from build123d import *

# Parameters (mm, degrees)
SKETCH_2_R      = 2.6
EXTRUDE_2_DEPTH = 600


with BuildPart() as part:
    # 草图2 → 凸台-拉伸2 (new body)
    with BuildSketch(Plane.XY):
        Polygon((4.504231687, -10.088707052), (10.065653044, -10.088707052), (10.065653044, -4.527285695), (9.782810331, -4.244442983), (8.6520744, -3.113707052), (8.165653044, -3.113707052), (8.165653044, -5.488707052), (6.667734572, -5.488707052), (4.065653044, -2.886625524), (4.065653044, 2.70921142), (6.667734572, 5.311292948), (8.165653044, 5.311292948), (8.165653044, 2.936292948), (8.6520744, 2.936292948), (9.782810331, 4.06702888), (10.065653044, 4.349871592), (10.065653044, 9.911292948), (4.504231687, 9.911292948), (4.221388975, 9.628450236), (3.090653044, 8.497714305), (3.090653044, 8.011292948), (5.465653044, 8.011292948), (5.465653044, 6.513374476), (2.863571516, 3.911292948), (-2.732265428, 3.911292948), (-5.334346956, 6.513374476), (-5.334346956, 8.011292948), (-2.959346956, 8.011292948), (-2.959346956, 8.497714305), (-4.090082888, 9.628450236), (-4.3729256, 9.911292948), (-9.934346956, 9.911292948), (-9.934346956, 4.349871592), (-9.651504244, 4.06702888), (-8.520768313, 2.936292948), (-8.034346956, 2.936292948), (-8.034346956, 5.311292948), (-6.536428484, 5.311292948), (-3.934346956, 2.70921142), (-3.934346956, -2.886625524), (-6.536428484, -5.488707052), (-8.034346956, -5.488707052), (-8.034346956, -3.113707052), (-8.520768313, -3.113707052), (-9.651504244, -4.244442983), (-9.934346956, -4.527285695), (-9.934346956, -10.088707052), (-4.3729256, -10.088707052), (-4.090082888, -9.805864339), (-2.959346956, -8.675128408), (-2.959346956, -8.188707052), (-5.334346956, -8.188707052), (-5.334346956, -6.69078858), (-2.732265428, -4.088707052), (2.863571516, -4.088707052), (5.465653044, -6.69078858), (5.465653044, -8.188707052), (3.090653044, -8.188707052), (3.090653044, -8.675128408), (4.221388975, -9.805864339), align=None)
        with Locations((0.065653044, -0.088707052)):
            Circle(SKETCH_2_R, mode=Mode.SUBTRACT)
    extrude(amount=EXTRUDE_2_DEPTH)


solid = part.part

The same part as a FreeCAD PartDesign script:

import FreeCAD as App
import Part
import Sketcher
from FreeCAD import Vector
Q = App.Units.Quantity

doc = App.newDocument("Part")
body = doc.addObject("PartDesign::Body", "Body")

sketch1 = body.newObject("Sketcher::SketchObject", "Sketch")
sketch1.AttachmentSupport = (doc.getObject("XY_Plane"), [""])
sketch1.MapMode = "FlatFace"
sketch1.addGeometry(Part.LineSegment(Vector(4.5, -10.09, 0), Vector(10.07, -10.09, 0)), False)
sketch1.addGeometry(Part.LineSegment(Vector(10.07, -10.09, 0), Vector(10.07, -4.53, 0)), False)
sketch1.addGeometry(Part.LineSegment(Vector(10.07, -4.53, 0), Vector(9.78, -4.24, 0)), False)
sketch1.addGeometry(Part.LineSegment(Vector(9.78, -4.24, 0), Vector(8.65, -3.11, 0)), False)
sketch1.addGeometry(Part.LineSegment(Vector(8.65, -3.11, 0), Vector(8.17, -3.11, 0)), False)
sketch1.addGeometry(Part.LineSegment(Vector(8.17, -3.11, 0), Vector(8.17, -5.49, 0)), False)
sketch1.addGeometry(Part.LineSegment(Vector(8.17, -5.49, 0), Vector(6.67, -5.49, 0)), False)
sketch1.addGeometry(Part.LineSegment(Vector(6.67, -5.49, 0), Vector(4.07, -2.89, 0)), False)
sketch1.addGeometry(Part.LineSegment(Vector(4.07, -2.89, 0), Vector(4.07, 2.71, 0)), False)
sketch1.addGeometry(Part.LineSegment(Vector(4.07, 2.71, 0), Vector(6.67, 5.31, 0)), False)
sketch1.addGeometry(Part.LineSegment(Vector(6.67, 5.31, 0), Vector(8.17, 5.31, 0)), False)
sketch1.addGeometry(Part.LineSegment(Vector(8.17, 5.31, 0), Vector(8.17, 2.94, 0)), False)
sketch1.addGeometry(Part.LineSegment(Vector(8.17, 2.94, 0), Vector(8.65, 2.94, 0)), False)
sketch1.addGeometry(Part.LineSegment(Vector(8.65, 2.94, 0), Vector(9.78, 4.07, 0)), False)
sketch1.addGeometry(Part.LineSegment(Vector(9.78, 4.07, 0), Vector(10.07, 4.35, 0)), False)
sketch1.addGeometry(Part.LineSegment(Vector(10.07, 4.35, 0), Vector(10.07, 9.91, 0)), False)
sketch1.addGeometry(Part.LineSegment(Vector(10.07, 9.91, 0), Vector(4.5, 9.91, 0)), False)
sketch1.addGeometry(Part.LineSegment(Vector(4.5, 9.91, 0), Vector(3.09, 8.5, 0)), False)
sketch1.addGeometry(Part.LineSegment(Vector(3.09, 8.5, 0), Vector(3.09, 8.01, 0)), False)
sketch1.addGeometry(Part.LineSegment(Vector(3.09, 8.01, 0), Vector(5.47, 8.01, 0)), False)
sketch1.addGeometry(Part.LineSegment(Vector(5.47, 8.01, 0), Vector(5.47, 6.51, 0)), False)
sketch1.addGeometry(Part.LineSegment(Vector(5.47, 6.51, 0), Vector(2.86, 3.91, 0)), False)
sketch1.addGeometry(Part.LineSegment(Vector(2.86, 3.91, 0), Vector(-2.73, 3.91, 0)), False)
sketch1.addGeometry(Part.LineSegment(Vector(-2.73, 3.91, 0), Vector(-5.33, 6.51, 0)), False)
sketch1.addGeometry(Part.LineSegment(Vector(-5.33, 6.51, 0), Vector(-5.33, 8.01, 0)), False)
sketch1.addGeometry(Part.LineSegment(Vector(-5.33, 8.01, 0), Vector(-2.96, 8.01, 0)), False)
sketch1.addGeometry(Part.LineSegment(Vector(-2.96, 8.01, 0), Vector(-2.96, 8.5, 0)), False)
sketch1.addGeometry(Part.LineSegment(Vector(-2.96, 8.5, 0), Vector(-4.09, 9.63, 0)), False)
sketch1.addGeometry(Part.LineSegment(Vector(-4.09, 9.63, 0), Vector(-4.37, 9.91, 0)), False)
sketch1.addGeometry(Part.LineSegment(Vector(-4.37, 9.91, 0), Vector(-9.93, 9.91, 0)), False)
sketch1.addGeometry(Part.LineSegment(Vector(-9.93, 9.91, 0), Vector(-9.93, 4.35, 0)), False)
sketch1.addGeometry(Part.LineSegment(Vector(-9.93, 4.35, 0), Vector(-9.65, 4.07, 0)), False)
sketch1.addGeometry(Part.LineSegment(Vector(-9.65, 4.07, 0), Vector(-8.52, 2.94, 0)), False)
sketch1.addGeometry(Part.LineSegment(Vector(-8.52, 2.94, 0), Vector(-8.03, 2.94, 0)), False)
sketch1.addGeometry(Part.LineSegment(Vector(-8.03, 2.94, 0), Vector(-8.03, 5.31, 0)), False)
sketch1.addGeometry(Part.LineSegment(Vector(-8.03, 5.31, 0), Vector(-6.54, 5.31, 0)), False)
sketch1.addGeometry(Part.LineSegment(Vector(-6.54, 5.31, 0), Vector(-3.93, 2.71, 0)), False)
sketch1.addGeometry(Part.LineSegment(Vector(-3.93, 2.71, 0), Vector(-3.93, -2.89, 0)), False)
sketch1.addGeometry(Part.LineSegment(Vector(-3.93, -2.89, 0), Vector(-6.54, -5.49, 0)), False)
sketch1.addGeometry(Part.LineSegment(Vector(-6.54, -5.49, 0), Vector(-8.03, -5.49, 0)), False)
sketch1.addGeometry(Part.LineSegment(Vector(-8.03, -5.49, 0), Vector(-8.03, -3.11, 0)), False)
sketch1.addGeometry(Part.LineSegment(Vector(-8.03, -3.11, 0), Vector(-8.52, -3.11, 0)), False)
sketch1.addGeometry(Part.LineSegment(Vector(-8.52, -3.11, 0), Vector(-9.93, -4.53, 0)), False)
sketch1.addGeometry(Part.LineSegment(Vector(-9.93, -4.53, 0), Vector(-9.93, -10.09, 0)), False)
sketch1.addGeometry(Part.LineSegment(Vector(-9.93, -10.09, 0), Vector(-4.37, -10.09, 0)), False)
sketch1.addGeometry(Part.LineSegment(Vector(-4.37, -10.09, 0), Vector(-4.09, -9.81, 0)), False)
sketch1.addGeometry(Part.LineSegment(Vector(-4.09, -9.81, 0), Vector(-2.96, -8.68, 0)), False)
sketch1.addGeometry(Part.LineSegment(Vector(-2.96, -8.68, 0), Vector(-2.96, -8.19, 0)), False)
sketch1.addGeometry(Part.LineSegment(Vector(-2.96, -8.19, 0), Vector(-5.33, -8.19, 0)), False)
sketch1.addGeometry(Part.LineSegment(Vector(-5.33, -8.19, 0), Vector(-5.33, -6.69, 0)), False)
sketch1.addGeometry(Part.LineSegment(Vector(-5.33, -6.69, 0), Vector(-2.73, -4.09, 0)), False)
sketch1.addGeometry(Part.LineSegment(Vector(-2.73, -4.09, 0), Vector(2.86, -4.09, 0)), False)
sketch1.addGeometry(Part.LineSegment(Vector(2.86, -4.09, 0), Vector(5.47, -6.69, 0)), False)
sketch1.addGeometry(Part.LineSegment(Vector(5.47, -6.69, 0), Vector(5.47, -8.19, 0)), False)
sketch1.addGeometry(Part.LineSegment(Vector(5.47, -8.19, 0), Vector(3.09, -8.19, 0)), False)
sketch1.addGeometry(Part.LineSegment(Vector(3.09, -8.19, 0), Vector(3.09, -8.68, 0)), False)
sketch1.addGeometry(Part.LineSegment(Vector(3.09, -8.68, 0), Vector(4.22, -9.81, 0)), False)
sketch1.addGeometry(Part.LineSegment(Vector(4.22, -9.81, 0), Vector(4.5, -10.09, 0)), False)
sketch1.addGeometry(Part.Circle(Vector(0.07, -0.09, 0), Vector(0, 0, 1), 2.6), False)
sketch1.addConstraint(Sketcher.Constraint("Coincident", 0, 2, 1, 1))
sketch1.addConstraint(Sketcher.Constraint("Coincident", 1, 2, 2, 1))
sketch1.addConstraint(Sketcher.Constraint("Coincident", 2, 2, 3, 1))
sketch1.addConstraint(Sketcher.Constraint("Coincident", 3, 2, 4, 1))
sketch1.addConstraint(Sketcher.Constraint("Coincident", 4, 2, 5, 1))
sketch1.addConstraint(Sketcher.Constraint("Coincident", 5, 2, 6, 1))
sketch1.addConstraint(Sketcher.Constraint("Coincident", 6, 2, 7, 1))
sketch1.addConstraint(Sketcher.Constraint("Coincident", 7, 2, 8, 1))
sketch1.addConstraint(Sketcher.Constraint("Coincident", 8, 2, 9, 1))
sketch1.addConstraint(Sketcher.Constraint("Coincident", 9, 2, 10, 1))
sketch1.addConstraint(Sketcher.Constraint("Coincident", 10, 2, 11, 1))
sketch1.addConstraint(Sketcher.Constraint("Coincident", 11, 2, 12, 1))
sketch1.addConstraint(Sketcher.Constraint("Coincident", 12, 2, 13, 1))
sketch1.addConstraint(Sketcher.Constraint("Coincident", 13, 2, 14, 1))
sketch1.addConstraint(Sketcher.Constraint("Coincident", 14, 2, 15, 1))
sketch1.addConstraint(Sketcher.Constraint("Coincident", 15, 2, 16, 1))
sketch1.addConstraint(Sketcher.Constraint("Coincident", 16, 2, 17, 1))
sketch1.addConstraint(Sketcher.Constraint("Coincident", 17, 2, 18, 1))
sketch1.addConstraint(Sketcher.Constraint("Coincident", 18, 2, 19, 1))
sketch1.addConstraint(Sketcher.Constraint("Coincident", 19, 2, 20, 1))
sketch1.addConstraint(Sketcher.Constraint("Coincident", 20, 2, 21, 1))
sketch1.addConstraint(Sketcher.Constraint("Coincident", 21, 2, 22, 1))
sketch1.addConstraint(Sketcher.Constraint("Coincident", 22, 2, 23, 1))
sketch1.addConstraint(Sketcher.Constraint("Coincident", 23, 2, 24, 1))
sketch1.addConstraint(Sketcher.Constraint("Coincident", 24, 2, 25, 1))
sketch1.addConstraint(Sketcher.Constraint("Coincident", 25, 2, 26, 1))
sketch1.addConstraint(Sketcher.Constraint("Coincident", 26, 2, 27, 1))
sketch1.addConstraint(Sketcher.Constraint("Coincident", 27, 2, 28, 1))
sketch1.addConstraint(Sketcher.Constraint("Coincident", 28, 2, 29, 1))
sketch1.addConstraint(Sketcher.Constraint("Coincident", 29, 2, 30, 1))
sketch1.addConstraint(Sketcher.Constraint("Coincident", 30, 2, 31, 1))
sketch1.addConstraint(Sketcher.Constraint("Coincident", 31, 2, 32, 1))
sketch1.addConstraint(Sketcher.Constraint("Coincident", 32, 2, 33, 1))
sketch1.addConstraint(Sketcher.Constraint("Coincident", 33, 2, 34, 1))
sketch1.addConstraint(Sketcher.Constraint("Coincident", 34, 2, 35, 1))
sketch1.addConstraint(Sketcher.Constraint("Coincident", 35, 2, 36, 1))
sketch1.addConstraint(Sketcher.Constraint("Coincident", 36, 2, 37, 1))
sketch1.addConstraint(Sketcher.Constraint("Coincident", 37, 2, 38, 1))
sketch1.addConstraint(Sketcher.Constraint("Coincident", 38, 2, 39, 1))
sketch1.addConstraint(Sketcher.Constraint("Coincident", 39, 2, 40, 1))
sketch1.addConstraint(Sketcher.Constraint("Coincident", 40, 2, 41, 1))
sketch1.addConstraint(Sketcher.Constraint("Coincident", 41, 2, 42, 1))
sketch1.addConstraint(Sketcher.Constraint("Coincident", 42, 2, 43, 1))
sketch1.addConstraint(Sketcher.Constraint("Coincident", 43, 2, 44, 1))
sketch1.addConstraint(Sketcher.Constraint("Coincident", 44, 2, 45, 1))
sketch1.addConstraint(Sketcher.Constraint("Coincident", 45, 2, 46, 1))
sketch1.addConstraint(Sketcher.Constraint("Coincident", 46, 2, 47, 1))
sketch1.addConstraint(Sketcher.Constraint("Coincident", 47, 2, 48, 1))
sketch1.addConstraint(Sketcher.Constraint("Coincident", 48, 2, 49, 1))
sketch1.addConstraint(Sketcher.Constraint("Coincident", 49, 2, 50, 1))
sketch1.addConstraint(Sketcher.Constraint("Coincident", 50, 2, 51, 1))
sketch1.addConstraint(Sketcher.Constraint("Coincident", 51, 2, 52, 1))
sketch1.addConstraint(Sketcher.Constraint("Coincident", 52, 2, 53, 1))
sketch1.addConstraint(Sketcher.Constraint("Coincident", 53, 2, 54, 1))
sketch1.addConstraint(Sketcher.Constraint("Coincident", 54, 2, 55, 1))
sketch1.addConstraint(Sketcher.Constraint("Coincident", 55, 2, 56, 1))
sketch1.addConstraint(Sketcher.Constraint("Coincident", 56, 2, 57, 1))
sketch1.addConstraint(Sketcher.Constraint("Coincident", 57, 2, 0, 1))
sketch1.addConstraint(Sketcher.Constraint("Horizontal", 0))
sketch1.addConstraint(Sketcher.Constraint("Vertical", 1))
sketch1.addConstraint(Sketcher.Constraint("Horizontal", 4))
sketch1.addConstraint(Sketcher.Constraint("Vertical", 5))
sketch1.addConstraint(Sketcher.Constraint("Horizontal", 6))
sketch1.addConstraint(Sketcher.Constraint("Vertical", 8))
sketch1.addConstraint(Sketcher.Constraint("Horizontal", 10))
sketch1.addConstraint(Sketcher.Constraint("Vertical", 11))
sketch1.addConstraint(Sketcher.Constraint("Horizontal", 12))
sketch1.addConstraint(Sketcher.Constraint("Vertical", 15))
sketch1.addConstraint(Sketcher.Constraint("Horizontal", 16))
sketch1.addConstraint(Sketcher.Constraint("Vertical", 18))
sketch1.addConstraint(Sketcher.Constraint("Horizontal", 19))
sketch1.addConstraint(Sketcher.Constraint("Vertical", 20))
sketch1.addConstraint(Sketcher.Constraint("Horizontal", 22))
sketch1.addConstraint(Sketcher.Constraint("Vertical", 24))
sketch1.addConstraint(Sketcher.Constraint("Horizontal", 25))
sketch1.addConstraint(Sketcher.Constraint("Vertical", 26))
sketch1.addConstraint(Sketcher.Constraint("Horizontal", 29))
sketch1.addConstraint(Sketcher.Constraint("Vertical", 30))
sketch1.addConstraint(Sketcher.Constraint("Horizontal", 33))
sketch1.addConstraint(Sketcher.Constraint("Vertical", 34))
sketch1.addConstraint(Sketcher.Constraint("Horizontal", 35))
sketch1.addConstraint(Sketcher.Constraint("Vertical", 37))
sketch1.addConstraint(Sketcher.Constraint("Horizontal", 39))
sketch1.addConstraint(Sketcher.Constraint("Vertical", 40))
sketch1.addConstraint(Sketcher.Constraint("Horizontal", 41))
sketch1.addConstraint(Sketcher.Constraint("Vertical", 43))
sketch1.addConstraint(Sketcher.Constraint("Horizontal", 44))
sketch1.addConstraint(Sketcher.Constraint("Vertical", 47))
sketch1.addConstraint(Sketcher.Constraint("Horizontal", 48))
sketch1.addConstraint(Sketcher.Constraint("Vertical", 49))
sketch1.addConstraint(Sketcher.Constraint("Horizontal", 51))
sketch1.addConstraint(Sketcher.Constraint("Vertical", 53))
sketch1.addConstraint(Sketcher.Constraint("Horizontal", 54))
sketch1.addConstraint(Sketcher.Constraint("Vertical", 55))
sketch1.addConstraint(Sketcher.Constraint("Parallel", 2, 3))
sketch1.addConstraint(Sketcher.Constraint("Parallel", 3, 7))
sketch1.addConstraint(Sketcher.Constraint("Perpendicular", 7, 9))
sketch1.addConstraint(Sketcher.Constraint("Parallel", 9, 13))
sketch1.addConstraint(Sketcher.Constraint("Parallel", 13, 14))
sketch1.addConstraint(Sketcher.Constraint("Parallel", 14, 17))
sketch1.addConstraint(Sketcher.Constraint("Parallel", 17, 21))
sketch1.addConstraint(Sketcher.Constraint("Perpendicular", 21, 23))
sketch1.addConstraint(Sketcher.Constraint("Parallel", 23, 27))
sketch1.addConstraint(Sketcher.Constraint("Parallel", 27, 28))
sketch1.addConstraint(Sketcher.Constraint("Parallel", 28, 31))
sketch1.addConstraint(Sketcher.Constraint("Parallel", 31, 32))
sketch1.addConstraint(Sketcher.Constraint("Parallel", 32, 36))
sketch1.addConstraint(Sketcher.Constraint("Perpendicular", 36, 38))
sketch1.addConstraint(Sketcher.Constraint("Parallel", 38, 42))
sketch1.addConstraint(Sketcher.Constraint("Parallel", 42, 45))
sketch1.addConstraint(Sketcher.Constraint("Parallel", 45, 46))
sketch1.addConstraint(Sketcher.Constraint("Parallel", 46, 50))
sketch1.addConstraint(Sketcher.Constraint("Perpendicular", 50, 52))
sketch1.addConstraint(Sketcher.Constraint("Parallel", 52, 56))
sketch1.addConstraint(Sketcher.Constraint("Parallel", 56, 57))
sketch1.addConstraint(Sketcher.Constraint("Horizontal", 20, 2, 23, 2))
sketch1.addConstraint(Sketcher.Constraint("Horizontal", 19, 2, 24, 2))
sketch1.addConstraint(Sketcher.Constraint("Horizontal", 17, 2, 26, 2))
sketch1.addConstraint(Sketcher.Constraint("Horizontal", 16, 2, 28, 2))
sketch1.addConstraint(Sketcher.Constraint("Horizontal", 14, 2, 30, 2))
sketch1.addConstraint(Sketcher.Constraint("Horizontal", 13, 2, 31, 2))
sketch1.addConstraint(Sketcher.Constraint("Horizontal", 12, 2, 32, 2))
sketch1.addConstraint(Sketcher.Constraint("Horizontal", 10, 2, 34, 2))
sketch1.addConstraint(Sketcher.Constraint("Horizontal", 8, 2, 36, 2))
sketch1.addConstraint(Sketcher.Constraint("Horizontal", 7, 2, 37, 2))
sketch1.addConstraint(Sketcher.Constraint("Horizontal", 6, 2, 38, 2))
sketch1.addConstraint(Sketcher.Constraint("Horizontal", 4, 2, 40, 2))
sketch1.addConstraint(Sketcher.Constraint("Horizontal", 1, 2, 42, 2))
sketch1.addConstraint(Sketcher.Constraint("Horizontal", 0, 2, 43, 2))
sketch1.addConstraint(Sketcher.Constraint("Horizontal", 49, 2, 52, 2))
sketch1.addConstraint(Sketcher.Constraint("Horizontal", 48, 2, 53, 2))
sketch1.addConstraint(Sketcher.Constraint("Horizontal", 46, 2, 55, 2))
sketch1.addConstraint(Sketcher.Constraint("Horizontal", 45, 2, 56, 2))
sketch1.addConstraint(Sketcher.Constraint("Vertical", 6, 2, 9, 2))
sketch1.addConstraint(Sketcher.Constraint("Vertical", 5, 2, 10, 2))
sketch1.addConstraint(Sketcher.Constraint("Vertical", 3, 2, 12, 2))
sketch1.addConstraint(Sketcher.Constraint("Vertical", 2, 2, 13, 2))
sketch1.addConstraint(Sketcher.Constraint("Vertical", 1, 2, 14, 2))
sketch1.addConstraint(Sketcher.Constraint("Vertical", 35, 2, 38, 2))
sketch1.addConstraint(Sketcher.Constraint("Vertical", 34, 2, 39, 2))
sketch1.addConstraint(Sketcher.Constraint("Vertical", 32, 2, 41, 2))
sketch1.addConstraint(Sketcher.Constraint("Vertical", 28, 2, 44, 2))
sketch1.addConstraint(Sketcher.Constraint("Vertical", 27, 2, 45, 2))
sketch1.addConstraint(Sketcher.Constraint("Vertical", 26, 2, 46, 2))
sketch1.addConstraint(Sketcher.Constraint("Vertical", 24, 2, 48, 2))
sketch1.addConstraint(Sketcher.Constraint("Vertical", 22, 2, 50, 2))
sketch1.addConstraint(Sketcher.Constraint("Vertical", 21, 2, 51, 2))
sketch1.addConstraint(Sketcher.Constraint("Vertical", 18, 2, 54, 2))
sketch1.addConstraint(Sketcher.Constraint("Equal", 19, 25))
sketch1.addConstraint(Sketcher.Constraint("Equal", 16, 29))
sketch1.addConstraint(Sketcher.Constraint("Equal", 12, 33))
sketch1.addConstraint(Sketcher.Constraint("Equal", 10, 35))
sketch1.addConstraint(Sketcher.Constraint("Equal", 44, 1))
sketch1.addConstraint(Sketcher.Constraint("Equal", 54, 5))
sketch1.addConstraint(Sketcher.Constraint("Equal", 51, 8))
sketch1.addConstraint(Sketcher.Constraint("Equal", 5, 11))
sketch1.addConstraint(Sketcher.Constraint("Equal", 1, 15))
sketch1.addConstraint(Sketcher.Constraint("Equal", 41, 18))
sketch1.addConstraint(Sketcher.Constraint("Equal", 39, 20))
sketch1.addConstraint(Sketcher.Constraint("Equal", 26, 47))
sketch1.addConstraint(Sketcher.Constraint("Equal", 24, 49))
sketch1.addConstraint(Sketcher.Constraint("Equal", 9, 21))
sketch1.addConstraint(Sketcher.Constraint("Equal", 13, 27))
sketch1.addConstraint(Sketcher.Constraint("Equal", 14, 28))
sketch1.addConstraint(Sketcher.Constraint("Diameter", 58, Q("5.2 mm")))
sketch1.addConstraint(Sketcher.Constraint("DistanceX", 58, 3, 0, 2, Q("10 mm")))
sketch1.addConstraint(Sketcher.Constraint("DistanceY", 0, 2, 58, 3, Q("10 mm")))
sketch1.addConstraint(Sketcher.Constraint("DistanceX", 58, 3, 7, 2, Q("4 mm")))
sketch1.addConstraint(Sketcher.Constraint("DistanceY", 58, 3, 22, 2, Q("4 mm")))
sketch1.addConstraint(Sketcher.Constraint("Distance", 2, Q("0.4 mm")))
sketch1.addConstraint(Sketcher.Constraint("DistanceX", 4, 2, 1, 2, Q("1.9 mm")))
sketch1.addConstraint(Sketcher.Constraint("DistanceY", 0, 2, 5, 2, Q("4.6 mm")))
sketch1.addConstraint(Sketcher.Constraint("DistanceX", 19, 1, 19, 2, Q("2.375 mm")))
sketch1.addConstraint(Sketcher.Constraint("Distance", 7, Q("3.679899 mm")))
sketch1.addConstraint(Sketcher.Constraint("DistanceX", 0, 1, 0, 2, Q("5.561421 mm")))
sketch1.addConstraint(Sketcher.Constraint("DistanceX", -1, 1, 2, 2, Q("9.78281 mm")))
sketch1.addConstraint(Sketcher.Constraint("DistanceY", -1, 1, 8, 2, Q("2.709211 mm")))
pad1 = body.newObject("PartDesign::Pad", "Pad")
pad1.Profile = sketch1
pad1.Length = 600

doc.recompute()
